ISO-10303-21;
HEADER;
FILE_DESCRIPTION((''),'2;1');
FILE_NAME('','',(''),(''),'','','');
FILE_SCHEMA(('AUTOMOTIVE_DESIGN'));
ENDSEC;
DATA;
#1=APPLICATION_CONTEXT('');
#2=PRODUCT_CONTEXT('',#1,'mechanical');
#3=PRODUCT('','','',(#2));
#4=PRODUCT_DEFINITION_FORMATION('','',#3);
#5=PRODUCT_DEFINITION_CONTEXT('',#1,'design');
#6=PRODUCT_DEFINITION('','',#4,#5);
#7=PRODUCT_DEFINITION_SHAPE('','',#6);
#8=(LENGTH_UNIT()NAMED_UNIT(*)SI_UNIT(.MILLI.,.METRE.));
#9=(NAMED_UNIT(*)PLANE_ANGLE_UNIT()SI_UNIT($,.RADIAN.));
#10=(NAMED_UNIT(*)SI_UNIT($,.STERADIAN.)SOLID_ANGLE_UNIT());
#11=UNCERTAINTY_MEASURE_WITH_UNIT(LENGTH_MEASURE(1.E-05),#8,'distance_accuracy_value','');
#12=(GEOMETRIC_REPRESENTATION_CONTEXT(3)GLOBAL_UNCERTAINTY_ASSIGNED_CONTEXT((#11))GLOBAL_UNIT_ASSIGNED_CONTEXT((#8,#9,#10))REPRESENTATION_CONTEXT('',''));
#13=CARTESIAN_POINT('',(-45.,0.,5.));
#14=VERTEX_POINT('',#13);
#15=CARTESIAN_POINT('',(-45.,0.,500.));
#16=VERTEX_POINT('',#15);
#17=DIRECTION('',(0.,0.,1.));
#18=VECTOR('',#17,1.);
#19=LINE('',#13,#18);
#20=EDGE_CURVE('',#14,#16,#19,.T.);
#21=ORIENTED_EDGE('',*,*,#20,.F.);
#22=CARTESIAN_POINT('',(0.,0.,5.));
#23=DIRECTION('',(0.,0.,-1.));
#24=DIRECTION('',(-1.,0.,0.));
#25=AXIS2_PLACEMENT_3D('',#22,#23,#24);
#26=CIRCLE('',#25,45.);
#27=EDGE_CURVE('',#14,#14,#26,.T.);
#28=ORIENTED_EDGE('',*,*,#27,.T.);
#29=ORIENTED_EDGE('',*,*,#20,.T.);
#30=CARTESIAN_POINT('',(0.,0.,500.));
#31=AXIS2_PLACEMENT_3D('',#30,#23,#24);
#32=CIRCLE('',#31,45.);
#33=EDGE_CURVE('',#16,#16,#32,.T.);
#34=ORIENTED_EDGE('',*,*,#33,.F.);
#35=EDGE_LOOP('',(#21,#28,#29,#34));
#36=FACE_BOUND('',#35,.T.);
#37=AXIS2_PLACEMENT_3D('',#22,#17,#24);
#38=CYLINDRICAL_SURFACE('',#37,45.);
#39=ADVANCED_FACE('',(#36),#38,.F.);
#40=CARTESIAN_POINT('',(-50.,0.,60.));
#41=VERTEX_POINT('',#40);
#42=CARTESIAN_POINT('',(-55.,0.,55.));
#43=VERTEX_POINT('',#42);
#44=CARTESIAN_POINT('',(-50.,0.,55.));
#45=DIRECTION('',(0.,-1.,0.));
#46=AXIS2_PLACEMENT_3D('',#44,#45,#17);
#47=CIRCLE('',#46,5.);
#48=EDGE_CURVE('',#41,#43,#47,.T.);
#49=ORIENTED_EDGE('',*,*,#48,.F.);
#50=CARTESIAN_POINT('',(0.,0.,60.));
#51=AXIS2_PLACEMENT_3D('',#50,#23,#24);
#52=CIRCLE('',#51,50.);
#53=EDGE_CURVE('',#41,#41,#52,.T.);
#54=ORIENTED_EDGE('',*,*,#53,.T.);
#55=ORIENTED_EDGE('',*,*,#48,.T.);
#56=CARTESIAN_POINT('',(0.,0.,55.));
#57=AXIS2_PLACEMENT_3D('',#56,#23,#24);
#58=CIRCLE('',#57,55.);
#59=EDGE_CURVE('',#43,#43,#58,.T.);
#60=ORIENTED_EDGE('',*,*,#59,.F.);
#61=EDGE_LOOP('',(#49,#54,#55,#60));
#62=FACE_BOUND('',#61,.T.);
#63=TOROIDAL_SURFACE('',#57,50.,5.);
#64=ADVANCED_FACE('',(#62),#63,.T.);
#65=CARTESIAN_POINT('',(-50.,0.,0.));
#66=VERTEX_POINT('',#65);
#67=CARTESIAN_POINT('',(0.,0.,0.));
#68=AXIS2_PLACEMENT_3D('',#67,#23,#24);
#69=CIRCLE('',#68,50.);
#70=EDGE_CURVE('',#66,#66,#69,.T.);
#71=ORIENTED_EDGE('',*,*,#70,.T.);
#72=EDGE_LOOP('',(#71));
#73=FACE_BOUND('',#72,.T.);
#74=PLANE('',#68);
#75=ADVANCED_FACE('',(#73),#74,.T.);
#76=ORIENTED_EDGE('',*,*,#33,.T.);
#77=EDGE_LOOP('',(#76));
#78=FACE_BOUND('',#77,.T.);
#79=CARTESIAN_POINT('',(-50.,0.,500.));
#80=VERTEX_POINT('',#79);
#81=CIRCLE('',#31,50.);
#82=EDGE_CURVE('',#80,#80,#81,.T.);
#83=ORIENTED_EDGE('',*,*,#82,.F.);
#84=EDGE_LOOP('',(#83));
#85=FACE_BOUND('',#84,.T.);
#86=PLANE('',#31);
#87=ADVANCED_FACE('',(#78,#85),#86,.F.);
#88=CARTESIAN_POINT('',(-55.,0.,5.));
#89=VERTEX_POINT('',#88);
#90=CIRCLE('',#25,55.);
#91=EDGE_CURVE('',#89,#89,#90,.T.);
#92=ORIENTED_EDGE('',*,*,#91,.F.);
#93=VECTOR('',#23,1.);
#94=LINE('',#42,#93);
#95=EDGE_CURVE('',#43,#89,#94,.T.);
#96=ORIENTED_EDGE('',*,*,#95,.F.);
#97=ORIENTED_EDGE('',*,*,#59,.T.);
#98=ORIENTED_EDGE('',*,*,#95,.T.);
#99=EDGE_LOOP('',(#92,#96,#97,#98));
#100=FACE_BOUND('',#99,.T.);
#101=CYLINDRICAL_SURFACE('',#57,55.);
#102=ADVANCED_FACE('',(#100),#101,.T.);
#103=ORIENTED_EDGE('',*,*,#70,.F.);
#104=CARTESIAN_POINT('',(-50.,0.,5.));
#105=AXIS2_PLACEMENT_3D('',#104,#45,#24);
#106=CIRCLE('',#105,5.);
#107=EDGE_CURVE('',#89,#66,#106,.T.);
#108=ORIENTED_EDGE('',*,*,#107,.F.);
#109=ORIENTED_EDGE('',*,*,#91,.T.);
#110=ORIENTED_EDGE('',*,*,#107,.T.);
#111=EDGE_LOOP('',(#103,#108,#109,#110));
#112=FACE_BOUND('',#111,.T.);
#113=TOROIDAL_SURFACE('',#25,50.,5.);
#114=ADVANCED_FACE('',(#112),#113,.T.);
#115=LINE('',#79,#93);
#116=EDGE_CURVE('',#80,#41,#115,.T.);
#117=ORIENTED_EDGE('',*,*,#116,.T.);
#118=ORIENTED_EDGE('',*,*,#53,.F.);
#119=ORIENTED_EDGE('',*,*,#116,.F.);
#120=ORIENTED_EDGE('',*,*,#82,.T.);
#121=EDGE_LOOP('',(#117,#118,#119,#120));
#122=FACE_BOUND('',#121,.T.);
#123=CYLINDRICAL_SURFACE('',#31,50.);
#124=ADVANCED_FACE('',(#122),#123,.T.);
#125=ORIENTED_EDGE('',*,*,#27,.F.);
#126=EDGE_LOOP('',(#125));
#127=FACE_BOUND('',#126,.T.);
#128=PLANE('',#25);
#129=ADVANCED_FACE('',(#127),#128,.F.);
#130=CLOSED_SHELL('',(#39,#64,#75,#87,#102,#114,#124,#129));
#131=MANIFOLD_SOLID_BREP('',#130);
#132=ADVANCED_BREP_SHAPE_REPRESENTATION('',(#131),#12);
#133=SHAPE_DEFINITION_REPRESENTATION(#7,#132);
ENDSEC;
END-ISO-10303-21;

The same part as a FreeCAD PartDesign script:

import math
import FreeCAD as App
import Part
import Sketcher
Q = App.Units.Quantity

doc = App.newDocument("Part")
body = doc.addObject("PartDesign::Body", "Body")

# Sketch on XZ plane
sketch1 = doc.addObject("Sketcher::SketchObject", "Sketch")
body.addObject(sketch1)
sketch1.AttachmentSupport = (doc.XZ_Plane, [""])
sketch1.MapMode = "FlatFace"
sketch1.addGeometry([
    Part.ArcOfCircle(Part.Circle(App.Vector(-50, 55, 0), App.Vector(0, 0, 1), 5), math.radians(90), math.radians(180)),  # 0
    Part.LineSegment(App.Vector(-55, 55, 0), App.Vector(-55, 5, 0)),  # 1
    Part.ArcOfCircle(Part.Circle(App.Vector(-50, 5, 0), App.Vector(0, 0, 1), 5), math.radians(180), math.radians(270)),  # 2
    Part.LineSegment(App.Vector(-50, 0, 0), App.Vector(0, 0, 0)),  # 3
    Part.LineSegment(App.Vector(0, 0, 0), App.Vector(0, 5, 0)),  # 4
    Part.LineSegment(App.Vector(0, 5, 0), App.Vector(-45, 5, 0)),  # 5
    Part.LineSegment(App.Vector(-45, 5, 0), App.Vector(-45, 500, 0)),  # 6
    Part.LineSegment(App.Vector(-45, 500, 0), App.Vector(-50, 500, 0)),  # 7
    Part.LineSegment(App.Vector(-50, 500, 0), App.Vector(-50, 60, 0)),  # 8
], False)
sketch1.addConstraint([
    Sketcher.Constraint("Tangent", 0, 2, 1, 1),
    Sketcher.Constraint("Tangent", 1, 2, 2, 1),
    Sketcher.Constraint("Tangent", 2, 2, 3, 1),
    Sketcher.Constraint("Coincident", 3, 2, 4, 1),
    Sketcher.Constraint("Coincident", 4, 2, 5, 1),
    Sketcher.Constraint("Coincident", 5, 2, 6, 1),
    Sketcher.Constraint("Coincident", 6, 2, 7, 1),
    Sketcher.Constraint("Coincident", 7, 2, 8, 1),
    Sketcher.Constraint("Coincident", 8, 2, 0, 1),
    Sketcher.Constraint("Vertical", 1),
    Sketcher.Constraint("Horizontal", 3),
    Sketcher.Constraint("Vertical", 4),
    Sketcher.Constraint("Horizontal", 5),
    Sketcher.Constraint("Vertical", 6),
    Sketcher.Constraint("Horizontal", 7),
    Sketcher.Constraint("Vertical", 8),
    Sketcher.Constraint("Coincident", 3, 2, -1, 1),
    Sketcher.Constraint("Equal", 0, 2),
    Sketcher.Constraint("Horizontal", 1, 2, 4, 2),
    Sketcher.Constraint("Vertical", 2, 2, 7, 2),
    Sketcher.Constraint("Equal", 3, 1),
    Sketcher.Constraint("Equal", 7, 4),
    Sketcher.Constraint("Radius", 0, Q("5 mm")),
    Sketcher.Constraint("DistanceX", 3, 1, 3, 2, Q("50 mm")),
    Sketcher.Constraint("DistanceY", 6, 1, 6, 2, Q("495 mm")),
])
revolution = doc.addObject("PartDesign::Revolution", "Revolution")
body.addObject(revolution)
revolution.Profile = sketch1
revolution.ReferenceAxis = (sketch1, ["V_Axis"])
revolution.Angle = 360

doc.recompute()
